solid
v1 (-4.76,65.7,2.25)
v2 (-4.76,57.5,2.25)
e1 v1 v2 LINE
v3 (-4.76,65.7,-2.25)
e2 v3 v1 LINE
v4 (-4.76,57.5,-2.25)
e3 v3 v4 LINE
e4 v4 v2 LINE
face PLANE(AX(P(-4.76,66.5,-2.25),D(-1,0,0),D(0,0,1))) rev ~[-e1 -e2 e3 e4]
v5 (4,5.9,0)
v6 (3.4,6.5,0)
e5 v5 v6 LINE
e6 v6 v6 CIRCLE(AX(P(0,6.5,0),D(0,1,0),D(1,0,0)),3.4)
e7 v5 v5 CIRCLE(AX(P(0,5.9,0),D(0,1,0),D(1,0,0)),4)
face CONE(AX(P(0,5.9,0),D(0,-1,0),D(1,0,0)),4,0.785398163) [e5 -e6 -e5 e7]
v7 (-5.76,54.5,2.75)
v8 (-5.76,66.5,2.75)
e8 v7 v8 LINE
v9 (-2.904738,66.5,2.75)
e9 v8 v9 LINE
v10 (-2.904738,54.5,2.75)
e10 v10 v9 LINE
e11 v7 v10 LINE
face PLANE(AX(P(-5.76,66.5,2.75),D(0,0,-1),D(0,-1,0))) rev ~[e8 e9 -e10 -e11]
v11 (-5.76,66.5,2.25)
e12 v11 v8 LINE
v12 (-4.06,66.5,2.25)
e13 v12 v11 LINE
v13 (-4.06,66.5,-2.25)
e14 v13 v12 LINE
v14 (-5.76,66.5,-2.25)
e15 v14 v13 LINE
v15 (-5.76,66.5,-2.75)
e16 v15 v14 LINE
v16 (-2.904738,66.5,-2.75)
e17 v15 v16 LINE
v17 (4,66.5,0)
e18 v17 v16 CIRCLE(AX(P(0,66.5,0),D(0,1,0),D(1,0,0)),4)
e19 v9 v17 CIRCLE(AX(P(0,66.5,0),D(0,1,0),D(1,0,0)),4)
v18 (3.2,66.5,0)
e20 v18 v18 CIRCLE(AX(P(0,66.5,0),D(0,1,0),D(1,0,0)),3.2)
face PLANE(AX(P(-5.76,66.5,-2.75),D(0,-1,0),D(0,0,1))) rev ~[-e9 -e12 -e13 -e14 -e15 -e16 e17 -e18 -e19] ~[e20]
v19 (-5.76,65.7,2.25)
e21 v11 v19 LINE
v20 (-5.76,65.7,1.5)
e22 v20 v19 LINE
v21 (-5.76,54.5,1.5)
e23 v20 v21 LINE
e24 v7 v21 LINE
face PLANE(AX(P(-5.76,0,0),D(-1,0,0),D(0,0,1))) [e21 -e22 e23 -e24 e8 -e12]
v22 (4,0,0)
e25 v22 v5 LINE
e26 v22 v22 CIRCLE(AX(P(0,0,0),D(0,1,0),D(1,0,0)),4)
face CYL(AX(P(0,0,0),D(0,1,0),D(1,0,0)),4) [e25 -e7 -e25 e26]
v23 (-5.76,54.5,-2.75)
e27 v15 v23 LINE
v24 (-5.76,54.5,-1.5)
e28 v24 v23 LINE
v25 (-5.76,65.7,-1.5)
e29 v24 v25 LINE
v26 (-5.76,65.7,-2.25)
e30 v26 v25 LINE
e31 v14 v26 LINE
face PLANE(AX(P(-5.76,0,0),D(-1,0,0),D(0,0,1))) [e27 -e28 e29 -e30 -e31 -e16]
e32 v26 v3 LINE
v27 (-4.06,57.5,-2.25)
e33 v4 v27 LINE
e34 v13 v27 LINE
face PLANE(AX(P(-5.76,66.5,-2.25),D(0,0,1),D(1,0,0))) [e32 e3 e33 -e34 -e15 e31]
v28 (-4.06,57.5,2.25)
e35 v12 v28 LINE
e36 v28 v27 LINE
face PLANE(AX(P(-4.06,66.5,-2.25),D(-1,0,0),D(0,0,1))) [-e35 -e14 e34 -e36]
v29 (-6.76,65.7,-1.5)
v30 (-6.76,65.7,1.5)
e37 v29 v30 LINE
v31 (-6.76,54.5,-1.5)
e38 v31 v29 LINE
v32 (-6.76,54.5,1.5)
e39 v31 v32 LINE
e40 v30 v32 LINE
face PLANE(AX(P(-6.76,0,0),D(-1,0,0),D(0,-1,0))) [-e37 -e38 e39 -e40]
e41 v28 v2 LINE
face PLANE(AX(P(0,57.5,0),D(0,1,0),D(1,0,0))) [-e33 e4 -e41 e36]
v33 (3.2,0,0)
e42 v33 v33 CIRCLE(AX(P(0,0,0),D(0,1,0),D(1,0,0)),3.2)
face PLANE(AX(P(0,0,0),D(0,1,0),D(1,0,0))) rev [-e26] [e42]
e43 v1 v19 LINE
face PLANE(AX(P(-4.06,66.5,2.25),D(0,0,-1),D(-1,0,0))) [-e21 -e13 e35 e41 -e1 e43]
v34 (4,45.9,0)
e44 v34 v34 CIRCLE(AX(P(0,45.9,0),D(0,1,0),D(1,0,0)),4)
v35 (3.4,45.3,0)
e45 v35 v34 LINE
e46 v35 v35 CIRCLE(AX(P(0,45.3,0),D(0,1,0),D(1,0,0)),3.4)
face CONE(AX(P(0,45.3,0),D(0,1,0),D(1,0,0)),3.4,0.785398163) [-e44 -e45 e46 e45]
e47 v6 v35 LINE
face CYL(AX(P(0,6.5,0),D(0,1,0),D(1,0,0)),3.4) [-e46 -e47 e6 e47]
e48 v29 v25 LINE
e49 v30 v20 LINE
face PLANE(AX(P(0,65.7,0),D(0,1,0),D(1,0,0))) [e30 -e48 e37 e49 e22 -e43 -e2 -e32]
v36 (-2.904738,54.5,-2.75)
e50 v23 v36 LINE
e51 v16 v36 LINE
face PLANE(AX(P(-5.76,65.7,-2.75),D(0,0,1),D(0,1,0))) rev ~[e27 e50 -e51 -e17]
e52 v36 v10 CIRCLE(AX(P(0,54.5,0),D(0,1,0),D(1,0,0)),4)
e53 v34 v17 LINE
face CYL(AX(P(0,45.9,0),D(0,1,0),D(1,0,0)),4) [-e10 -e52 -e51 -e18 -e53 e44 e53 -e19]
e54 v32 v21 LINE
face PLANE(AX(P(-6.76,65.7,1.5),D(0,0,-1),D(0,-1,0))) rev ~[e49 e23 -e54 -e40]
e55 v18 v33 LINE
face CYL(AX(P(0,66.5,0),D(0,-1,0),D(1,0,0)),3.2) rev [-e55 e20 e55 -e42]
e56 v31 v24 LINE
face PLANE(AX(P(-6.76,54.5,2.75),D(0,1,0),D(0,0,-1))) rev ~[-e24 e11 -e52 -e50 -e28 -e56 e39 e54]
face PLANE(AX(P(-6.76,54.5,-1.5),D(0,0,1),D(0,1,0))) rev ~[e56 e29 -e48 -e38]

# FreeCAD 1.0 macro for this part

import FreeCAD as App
import Part
import Sketcher
from FreeCAD import Vector

doc = App.newDocument("Part")
body = doc.addObject("PartDesign::Body", "Body")

# Sketch on XY plane
sketch1 = body.newObject("Sketcher::SketchObject", "Sketch")
sketch1.AttachmentSupport = (doc.getObject("XY_Plane"), [""])
sketch1.MapMode = "FlatFace"
sketch1.addGeometry([
    Part.LineSegment(Vector(3.2, 66.5, 0), Vector(3.2, 0, 0)),  # 0
    Part.LineSegment(Vector(3.2, 0, 0), Vector(4, 0, 0)),  # 1
    Part.LineSegment(Vector(4, 0, 0), Vector(4, 5.9, 0)),  # 2
    Part.LineSegment(Vector(4, 5.9, 0), Vector(3.4, 6.5, 0)),  # 3
    Part.LineSegment(Vector(3.4, 6.5, 0), Vector(3.4, 45.3, 0)),  # 4
    Part.LineSegment(Vector(3.4, 45.3, 0), Vector(4, 45.9, 0)),  # 5
    Part.LineSegment(Vector(4, 45.9, 0), Vector(4, 66.5, 0)),  # 6
    Part.LineSegment(Vector(4, 66.5, 0), Vector(3.2, 66.5, 0)),  # 7
], False)
sketch1.addConstraint([
    Sketcher.Constraint("Coincident", 0, 2, 1, 1),
    Sketcher.Constraint("Coincident", 1, 2, 2, 1),
    Sketcher.Constraint("Coincident", 2, 2, 3, 1),
    Sketcher.Constraint("Coincident", 3, 2, 4, 1),
    Sketcher.Constraint("Coincident", 4, 2, 5, 1),
    Sketcher.Constraint("Coincident", 5, 2, 6, 1),
    Sketcher.Constraint("Coincident", 6, 2, 7, 1),
    Sketcher.Constraint("Coincident", 7, 2, 0, 1),
    Sketcher.Constraint("Vertical", 0),
    Sketcher.Constraint("Horizontal", 1),
    Sketcher.Constraint("Vertical", 2),
    Sketcher.Constraint("Vertical", 4),
    Sketcher.Constraint("Vertical", 6),
    Sketcher.Constraint("Horizontal", 7),
    Sketcher.Constraint("PointOnObject", 0, 2, -1),
    Sketcher.Constraint("Perpendicular", 3, 5),
    Sketcher.Constraint("Vertical", 2, 2, 5, 2),
    Sketcher.Constraint("Equal", 3, 5),
    Sketcher.Constraint("DistanceY", 0, 2, 0, 1, 66.5),
    Sketcher.Constraint("DistanceY", -1, 1, 3, 2, 6.5),
    Sketcher.Constraint("DistanceY", -1, 1, 4, 2, 45.3),
    Sketcher.Constraint("DistanceX", 1, 1, 1, 2, 0.8),
    Sketcher.Constraint("DistanceY", 2, 1, 2, 2, 5.9),
    Sketcher.Constraint("DistanceX", -1, 1, 1, 2, 4.0),
])
revolution = body.newObject("PartDesign::Revolution", "Revolution")
revolution.Profile = sketch1
revolution.ReferenceAxis = (sketch1, ["V_Axis"])
revolution.Angle = 360

# Sketch on YZ plane
sketch2 = body.newObject("Sketcher::SketchObject", "Sketch001")
sketch2.AttachmentSupport = (doc.getObject("YZ_Plane"), [""])
sketch2.MapMode = "FlatFace"
sketch2.AttachmentOffset = App.Placement(Vector(0, 0, -6.76), App.Rotation())
sketch2.addGeometry([
    Part.LineSegment(Vector(66, 3, 0), Vector(66, -3, 0)),
    Part.LineSegment(Vector(66, -3, 0), Vector(54, -3, 0)),
    Part.LineSegment(Vector(54, -3, 0), Vector(54, 3, 0)),
    Part.LineSegment(Vector(54, 3, 0), Vector(66, 3, 0)),
], False)
sketch2.addConstraint([
    Sketcher.Constraint("Coincident", 0, 2, 1, 1),
    Sketcher.Constraint("Coincident", 1, 2, 2, 1),
    Sketcher.Constraint("Coincident", 2, 2, 3, 1),
    Sketcher.Constraint("Coincident", 3, 2, 0, 1),
    Sketcher.Constraint("Vertical", 0),
    Sketcher.Constraint("Horizontal", 1),
    Sketcher.Constraint("Vertical", 2),
    Sketcher.Constraint("Horizontal", 3),
    Sketcher.Constraint("DistanceY", 0, 2, 0, 1, 5.5),
    Sketcher.Constraint("DistanceX", -1, 1, 0, 2, 65.7),
    Sketcher.Constraint("DistanceX", -1, 1, 1, 2, 54.5),
    Sketcher.Constraint("DistanceY", 0, 2, -1, 1, 2.75),
])
pad1 = body.newObject("PartDesign::Pad", "Pad")
pad1.Profile = sketch2
pad1.Type = "UpToFirst"

# Sketch on YZ plane
sketch3 = body.newObject("Sketcher::SketchObject", "Sketch002")
sketch3.AttachmentSupport = (doc.getObject("YZ_Plane"), [""])
sketch3.MapMode = "FlatFace"
sketch3.AttachmentOffset = App.Placement(Vector(0, 0, -6.76), App.Rotation())
sketch3.addGeometry([
    Part.LineSegment(Vector(65.7, 2.8, 0), Vector(65.7, 1.5, 0)),  # 0
    Part.LineSegment(Vector(65.7, 1.5, 0), Vector(54.5, 1.5, 0)),  # 1
    Part.LineSegment(Vector(54.5, 1.5, 0), Vector(54.5, 2.8, 0)),  # 2
    Part.LineSegment(Vector(54.5, 2.8, 0), Vector(65.7, 2.8, 0)),  # 3
    Part.LineSegment(Vector(54.5, -1.5, 0), Vector(65.7, -1.5, 0)),  # 4
    Part.LineSegment(Vector(65.7, -1.5, 0), Vector(65.7, -2.8, 0)),  # 5
    Part.LineSegment(Vector(65.7, -2.8, 0), Vector(54.5, -2.8, 0)),  # 6
    Part.LineSegment(Vector(54.5, -2.8, 0), Vector(54.5, -1.5, 0)),  # 7
], False)
sketch3.addConstraint([
    Sketcher.Constraint("Coincident", 0, 2, 1, 1),
    Sketcher.Constraint("Coincident", 1, 2, 2, 1),
    Sketcher.Constraint("Coincident", 2, 2, 3, 1),
    Sketcher.Constraint("Coincident", 3, 2, 0, 1),
    Sketcher.Constraint("Coincident", 4, 2, 5, 1),
    Sketcher.Constraint("Coincident", 5, 2, 6, 1),
    Sketcher.Constraint("Coincident", 6, 2, 7, 1),
    Sketcher.Constraint("Coincident", 7, 2, 4, 1),
    Sketcher.Constraint("Vertical", 0),
    Sketcher.Constraint("Horizontal", 1),
    Sketcher.Constraint("Vertical", 2),
    Sketcher.Constraint("Horizontal", 3),
    Sketcher.Constraint("Horizontal", 4),
    Sketcher.Constraint("Vertical", 5),
    Sketcher.Constraint("Horizontal", 6),
    Sketcher.Constraint("Vertical", 7),
    Sketcher.Constraint("Symmetric", 0, 2, 4, 2, -1),
    Sketcher.Constraint("Symmetric", 2, 2, 6, 2, -1),
    Sketcher.Constraint("DistanceY", 4, 2, 0, 2, 3.0),
    Sketcher.Constraint("DistanceX", -1, 1, 0, 2, 65.7),
    Sketcher.Constraint("DistanceX", -1, 1, 1, 2, 54.5),
    Sketcher.Constraint("DistanceY", 5, 2, 3, 2, 5.5),
])
pocket1 = body.newObject("PartDesign::Pocket", "Pocket")
pocket1.Profile = sketch3
pocket1.Length = 1
pocket1.Reversed = True

# Sketch on YZ plane
sketch4 = body.newObject("Sketcher::SketchObject", "Sketch003")
sketch4.AttachmentSupport = (doc.getObject("YZ_Plane"), [""])
sketch4.MapMode = "FlatFace"
sketch4.AttachmentOffset = App.Placement(Vector(0, 0, -5.76), App.Rotation())
sketch4.addGeometry([
    Part.LineSegment(Vector(65.7, -2.8, 0), Vector(65.7, 2.8, 0)),
    Part.LineSegment(Vector(65.7, 2.8, 0), Vector(66.5, 2.8, 0)),
    Part.LineSegment(Vector(66.5, 2.8, 0), Vector(66.5, -2.8, 0)),
    Part.LineSegment(Vector(66.5, -2.8, 0), Vector(65.7, -2.8, 0)),
], False)
sketch4.addConstraint([
    Sketcher.Constraint("Coincident", 0, 2, 1, 1),
    Sketcher.Constraint("Coincident", 1, 2, 2, 1),
    Sketcher.Constraint("Coincident", 2, 2, 3, 1),
    Sketcher.Constraint("Coincident", 3, 2, 0, 1),
    Sketcher.Constraint("Vertical", 0),
    Sketcher.Constraint("Horizontal", 1),
    Sketcher.Constraint("Vertical", 2),
    Sketcher.Constraint("Horizontal", 3),
    Sketcher.Constraint("DistanceX", 1, 1, 1, 2, 0.8),
    Sketcher.Constraint("DistanceY", 0, 1, 0, 2, 5.5),
    Sketcher.Constraint("DistanceX", -1, 1, 0, 2, 65.7),
    Sketcher.Constraint("DistanceY", -1, 1, 0, 2, 2.75),
])
pad2 = body.newObject("PartDesign::Pad", "Pad001")
pad2.Profile = sketch4
pad2.Type = "UpToFirst"

# Sketch on XZ plane
sketch5 = body.newObject("Sketcher::SketchObject", "Sketch004")
sketch5.AttachmentSupport = (doc.getObject("XZ_Plane"), [""])
sketch5.MapMode = "FlatFace"
sketch5.AttachmentOffset = App.Placement(Vector(0, 0, -66.5), App.Rotation())
sketch5.addGeometry([
    Part.LineSegment(Vector(-5.8, -2.2, 0), Vector(-5.8, 2.2, 0)),
    Part.LineSegment(Vector(-5.8, 2.2, 0), Vector(-4.8, 2.2, 0)),
    Part.LineSegment(Vector(-4.8, 2.2, 0), Vector(-4.8, -2.2, 0)),
    Part.LineSegment(Vector(-4.8, -2.2, 0), Vector(-5.8, -2.2, 0)),
], False)
sketch5.addConstraint([
    Sketcher.Constraint("Coincident", 0, 2, 1, 1),
    Sketcher.Constraint("Coincident", 1, 2, 2, 1),
    Sketcher.Constraint("Coincident", 2, 2, 3, 1),
    Sketcher.Constraint("Coincident", 3, 2, 0, 1),
    Sketcher.Constraint("Vertical", 0),
    Sketcher.Constraint("Horizontal", 1),
    Sketcher.Constraint("Vertical", 2),
    Sketcher.Constraint("Horizontal", 3),
    Sketcher.Constraint("DistanceY", 0, 1, 0, 2, 4.5),
    Sketcher.Constraint("DistanceX", 1, 1, 1, 2, 1.0),
    Sketcher.Constraint("DistanceX", 1, 2, -1, 1, 4.76),
    Sketcher.Constraint("DistanceY", -1, 1, 0, 2, 2.25),
])
pocket2 = body.newObject("PartDesign::Pocket", "Pocket001")
pocket2.Profile = sketch5
pocket2.Length = 0.8
pocket2.Reversed = True

# Sketch on XZ plane
sketch6 = body.newObject("Sketcher::SketchObject", "Sketch005")
sketch6.AttachmentSupport = (doc.getObject("XZ_Plane"), [""])
sketch6.MapMode = "FlatFace"
sketch6.AttachmentOffset = App.Placement(Vector(0, 0, -66.5), App.Rotation())
sketch6.addGeometry([
    Part.LineSegment(Vector(-4.1, -2.2, 0), Vector(-4.8, -2.2, 0)),
    Part.LineSegment(Vector(-4.8, -2.2, 0), Vector(-4.8, 2.2, 0)),
    Part.LineSegment(Vector(-4.8, 2.2, 0), Vector(-4.1, 2.2, 0)),
    Part.LineSegment(Vector(-4.1, 2.2, 0), Vector(-4.1, -2.2, 0)),
], False)
sketch6.addConstraint([
    Sketcher.Constraint("Coincident", 0, 2, 1, 1),
    Sketcher.Constraint("Coincident", 1, 2, 2, 1),
    Sketcher.Constraint("Coincident", 2, 2, 3, 1),
    Sketcher.Constraint("Coincident", 3, 2, 0, 1),
    Sketcher.Constraint("Horizontal", 0),
    Sketcher.Constraint("Vertical", 1),
    Sketcher.Constraint("Horizontal", 2),
    Sketcher.Constraint("Vertical", 3),
    Sketcher.Constraint("DistanceY", 1, 1, 1, 2, 4.5),
    Sketcher.Constraint("DistanceX", 0, 2, -1, 1, 4.76),
    Sketcher.Constraint("DistanceX", 2, 2, -1, 1, 4.06),
    Sketcher.Constraint("DistanceY", 0, 2, -1, 1, 2.25),
])
pocket3 = body.newObject("PartDesign::Pocket", "Pocket002")
pocket3.Profile = sketch6
pocket3.Length = 9
pocket3.Reversed = True

doc.recompute()
